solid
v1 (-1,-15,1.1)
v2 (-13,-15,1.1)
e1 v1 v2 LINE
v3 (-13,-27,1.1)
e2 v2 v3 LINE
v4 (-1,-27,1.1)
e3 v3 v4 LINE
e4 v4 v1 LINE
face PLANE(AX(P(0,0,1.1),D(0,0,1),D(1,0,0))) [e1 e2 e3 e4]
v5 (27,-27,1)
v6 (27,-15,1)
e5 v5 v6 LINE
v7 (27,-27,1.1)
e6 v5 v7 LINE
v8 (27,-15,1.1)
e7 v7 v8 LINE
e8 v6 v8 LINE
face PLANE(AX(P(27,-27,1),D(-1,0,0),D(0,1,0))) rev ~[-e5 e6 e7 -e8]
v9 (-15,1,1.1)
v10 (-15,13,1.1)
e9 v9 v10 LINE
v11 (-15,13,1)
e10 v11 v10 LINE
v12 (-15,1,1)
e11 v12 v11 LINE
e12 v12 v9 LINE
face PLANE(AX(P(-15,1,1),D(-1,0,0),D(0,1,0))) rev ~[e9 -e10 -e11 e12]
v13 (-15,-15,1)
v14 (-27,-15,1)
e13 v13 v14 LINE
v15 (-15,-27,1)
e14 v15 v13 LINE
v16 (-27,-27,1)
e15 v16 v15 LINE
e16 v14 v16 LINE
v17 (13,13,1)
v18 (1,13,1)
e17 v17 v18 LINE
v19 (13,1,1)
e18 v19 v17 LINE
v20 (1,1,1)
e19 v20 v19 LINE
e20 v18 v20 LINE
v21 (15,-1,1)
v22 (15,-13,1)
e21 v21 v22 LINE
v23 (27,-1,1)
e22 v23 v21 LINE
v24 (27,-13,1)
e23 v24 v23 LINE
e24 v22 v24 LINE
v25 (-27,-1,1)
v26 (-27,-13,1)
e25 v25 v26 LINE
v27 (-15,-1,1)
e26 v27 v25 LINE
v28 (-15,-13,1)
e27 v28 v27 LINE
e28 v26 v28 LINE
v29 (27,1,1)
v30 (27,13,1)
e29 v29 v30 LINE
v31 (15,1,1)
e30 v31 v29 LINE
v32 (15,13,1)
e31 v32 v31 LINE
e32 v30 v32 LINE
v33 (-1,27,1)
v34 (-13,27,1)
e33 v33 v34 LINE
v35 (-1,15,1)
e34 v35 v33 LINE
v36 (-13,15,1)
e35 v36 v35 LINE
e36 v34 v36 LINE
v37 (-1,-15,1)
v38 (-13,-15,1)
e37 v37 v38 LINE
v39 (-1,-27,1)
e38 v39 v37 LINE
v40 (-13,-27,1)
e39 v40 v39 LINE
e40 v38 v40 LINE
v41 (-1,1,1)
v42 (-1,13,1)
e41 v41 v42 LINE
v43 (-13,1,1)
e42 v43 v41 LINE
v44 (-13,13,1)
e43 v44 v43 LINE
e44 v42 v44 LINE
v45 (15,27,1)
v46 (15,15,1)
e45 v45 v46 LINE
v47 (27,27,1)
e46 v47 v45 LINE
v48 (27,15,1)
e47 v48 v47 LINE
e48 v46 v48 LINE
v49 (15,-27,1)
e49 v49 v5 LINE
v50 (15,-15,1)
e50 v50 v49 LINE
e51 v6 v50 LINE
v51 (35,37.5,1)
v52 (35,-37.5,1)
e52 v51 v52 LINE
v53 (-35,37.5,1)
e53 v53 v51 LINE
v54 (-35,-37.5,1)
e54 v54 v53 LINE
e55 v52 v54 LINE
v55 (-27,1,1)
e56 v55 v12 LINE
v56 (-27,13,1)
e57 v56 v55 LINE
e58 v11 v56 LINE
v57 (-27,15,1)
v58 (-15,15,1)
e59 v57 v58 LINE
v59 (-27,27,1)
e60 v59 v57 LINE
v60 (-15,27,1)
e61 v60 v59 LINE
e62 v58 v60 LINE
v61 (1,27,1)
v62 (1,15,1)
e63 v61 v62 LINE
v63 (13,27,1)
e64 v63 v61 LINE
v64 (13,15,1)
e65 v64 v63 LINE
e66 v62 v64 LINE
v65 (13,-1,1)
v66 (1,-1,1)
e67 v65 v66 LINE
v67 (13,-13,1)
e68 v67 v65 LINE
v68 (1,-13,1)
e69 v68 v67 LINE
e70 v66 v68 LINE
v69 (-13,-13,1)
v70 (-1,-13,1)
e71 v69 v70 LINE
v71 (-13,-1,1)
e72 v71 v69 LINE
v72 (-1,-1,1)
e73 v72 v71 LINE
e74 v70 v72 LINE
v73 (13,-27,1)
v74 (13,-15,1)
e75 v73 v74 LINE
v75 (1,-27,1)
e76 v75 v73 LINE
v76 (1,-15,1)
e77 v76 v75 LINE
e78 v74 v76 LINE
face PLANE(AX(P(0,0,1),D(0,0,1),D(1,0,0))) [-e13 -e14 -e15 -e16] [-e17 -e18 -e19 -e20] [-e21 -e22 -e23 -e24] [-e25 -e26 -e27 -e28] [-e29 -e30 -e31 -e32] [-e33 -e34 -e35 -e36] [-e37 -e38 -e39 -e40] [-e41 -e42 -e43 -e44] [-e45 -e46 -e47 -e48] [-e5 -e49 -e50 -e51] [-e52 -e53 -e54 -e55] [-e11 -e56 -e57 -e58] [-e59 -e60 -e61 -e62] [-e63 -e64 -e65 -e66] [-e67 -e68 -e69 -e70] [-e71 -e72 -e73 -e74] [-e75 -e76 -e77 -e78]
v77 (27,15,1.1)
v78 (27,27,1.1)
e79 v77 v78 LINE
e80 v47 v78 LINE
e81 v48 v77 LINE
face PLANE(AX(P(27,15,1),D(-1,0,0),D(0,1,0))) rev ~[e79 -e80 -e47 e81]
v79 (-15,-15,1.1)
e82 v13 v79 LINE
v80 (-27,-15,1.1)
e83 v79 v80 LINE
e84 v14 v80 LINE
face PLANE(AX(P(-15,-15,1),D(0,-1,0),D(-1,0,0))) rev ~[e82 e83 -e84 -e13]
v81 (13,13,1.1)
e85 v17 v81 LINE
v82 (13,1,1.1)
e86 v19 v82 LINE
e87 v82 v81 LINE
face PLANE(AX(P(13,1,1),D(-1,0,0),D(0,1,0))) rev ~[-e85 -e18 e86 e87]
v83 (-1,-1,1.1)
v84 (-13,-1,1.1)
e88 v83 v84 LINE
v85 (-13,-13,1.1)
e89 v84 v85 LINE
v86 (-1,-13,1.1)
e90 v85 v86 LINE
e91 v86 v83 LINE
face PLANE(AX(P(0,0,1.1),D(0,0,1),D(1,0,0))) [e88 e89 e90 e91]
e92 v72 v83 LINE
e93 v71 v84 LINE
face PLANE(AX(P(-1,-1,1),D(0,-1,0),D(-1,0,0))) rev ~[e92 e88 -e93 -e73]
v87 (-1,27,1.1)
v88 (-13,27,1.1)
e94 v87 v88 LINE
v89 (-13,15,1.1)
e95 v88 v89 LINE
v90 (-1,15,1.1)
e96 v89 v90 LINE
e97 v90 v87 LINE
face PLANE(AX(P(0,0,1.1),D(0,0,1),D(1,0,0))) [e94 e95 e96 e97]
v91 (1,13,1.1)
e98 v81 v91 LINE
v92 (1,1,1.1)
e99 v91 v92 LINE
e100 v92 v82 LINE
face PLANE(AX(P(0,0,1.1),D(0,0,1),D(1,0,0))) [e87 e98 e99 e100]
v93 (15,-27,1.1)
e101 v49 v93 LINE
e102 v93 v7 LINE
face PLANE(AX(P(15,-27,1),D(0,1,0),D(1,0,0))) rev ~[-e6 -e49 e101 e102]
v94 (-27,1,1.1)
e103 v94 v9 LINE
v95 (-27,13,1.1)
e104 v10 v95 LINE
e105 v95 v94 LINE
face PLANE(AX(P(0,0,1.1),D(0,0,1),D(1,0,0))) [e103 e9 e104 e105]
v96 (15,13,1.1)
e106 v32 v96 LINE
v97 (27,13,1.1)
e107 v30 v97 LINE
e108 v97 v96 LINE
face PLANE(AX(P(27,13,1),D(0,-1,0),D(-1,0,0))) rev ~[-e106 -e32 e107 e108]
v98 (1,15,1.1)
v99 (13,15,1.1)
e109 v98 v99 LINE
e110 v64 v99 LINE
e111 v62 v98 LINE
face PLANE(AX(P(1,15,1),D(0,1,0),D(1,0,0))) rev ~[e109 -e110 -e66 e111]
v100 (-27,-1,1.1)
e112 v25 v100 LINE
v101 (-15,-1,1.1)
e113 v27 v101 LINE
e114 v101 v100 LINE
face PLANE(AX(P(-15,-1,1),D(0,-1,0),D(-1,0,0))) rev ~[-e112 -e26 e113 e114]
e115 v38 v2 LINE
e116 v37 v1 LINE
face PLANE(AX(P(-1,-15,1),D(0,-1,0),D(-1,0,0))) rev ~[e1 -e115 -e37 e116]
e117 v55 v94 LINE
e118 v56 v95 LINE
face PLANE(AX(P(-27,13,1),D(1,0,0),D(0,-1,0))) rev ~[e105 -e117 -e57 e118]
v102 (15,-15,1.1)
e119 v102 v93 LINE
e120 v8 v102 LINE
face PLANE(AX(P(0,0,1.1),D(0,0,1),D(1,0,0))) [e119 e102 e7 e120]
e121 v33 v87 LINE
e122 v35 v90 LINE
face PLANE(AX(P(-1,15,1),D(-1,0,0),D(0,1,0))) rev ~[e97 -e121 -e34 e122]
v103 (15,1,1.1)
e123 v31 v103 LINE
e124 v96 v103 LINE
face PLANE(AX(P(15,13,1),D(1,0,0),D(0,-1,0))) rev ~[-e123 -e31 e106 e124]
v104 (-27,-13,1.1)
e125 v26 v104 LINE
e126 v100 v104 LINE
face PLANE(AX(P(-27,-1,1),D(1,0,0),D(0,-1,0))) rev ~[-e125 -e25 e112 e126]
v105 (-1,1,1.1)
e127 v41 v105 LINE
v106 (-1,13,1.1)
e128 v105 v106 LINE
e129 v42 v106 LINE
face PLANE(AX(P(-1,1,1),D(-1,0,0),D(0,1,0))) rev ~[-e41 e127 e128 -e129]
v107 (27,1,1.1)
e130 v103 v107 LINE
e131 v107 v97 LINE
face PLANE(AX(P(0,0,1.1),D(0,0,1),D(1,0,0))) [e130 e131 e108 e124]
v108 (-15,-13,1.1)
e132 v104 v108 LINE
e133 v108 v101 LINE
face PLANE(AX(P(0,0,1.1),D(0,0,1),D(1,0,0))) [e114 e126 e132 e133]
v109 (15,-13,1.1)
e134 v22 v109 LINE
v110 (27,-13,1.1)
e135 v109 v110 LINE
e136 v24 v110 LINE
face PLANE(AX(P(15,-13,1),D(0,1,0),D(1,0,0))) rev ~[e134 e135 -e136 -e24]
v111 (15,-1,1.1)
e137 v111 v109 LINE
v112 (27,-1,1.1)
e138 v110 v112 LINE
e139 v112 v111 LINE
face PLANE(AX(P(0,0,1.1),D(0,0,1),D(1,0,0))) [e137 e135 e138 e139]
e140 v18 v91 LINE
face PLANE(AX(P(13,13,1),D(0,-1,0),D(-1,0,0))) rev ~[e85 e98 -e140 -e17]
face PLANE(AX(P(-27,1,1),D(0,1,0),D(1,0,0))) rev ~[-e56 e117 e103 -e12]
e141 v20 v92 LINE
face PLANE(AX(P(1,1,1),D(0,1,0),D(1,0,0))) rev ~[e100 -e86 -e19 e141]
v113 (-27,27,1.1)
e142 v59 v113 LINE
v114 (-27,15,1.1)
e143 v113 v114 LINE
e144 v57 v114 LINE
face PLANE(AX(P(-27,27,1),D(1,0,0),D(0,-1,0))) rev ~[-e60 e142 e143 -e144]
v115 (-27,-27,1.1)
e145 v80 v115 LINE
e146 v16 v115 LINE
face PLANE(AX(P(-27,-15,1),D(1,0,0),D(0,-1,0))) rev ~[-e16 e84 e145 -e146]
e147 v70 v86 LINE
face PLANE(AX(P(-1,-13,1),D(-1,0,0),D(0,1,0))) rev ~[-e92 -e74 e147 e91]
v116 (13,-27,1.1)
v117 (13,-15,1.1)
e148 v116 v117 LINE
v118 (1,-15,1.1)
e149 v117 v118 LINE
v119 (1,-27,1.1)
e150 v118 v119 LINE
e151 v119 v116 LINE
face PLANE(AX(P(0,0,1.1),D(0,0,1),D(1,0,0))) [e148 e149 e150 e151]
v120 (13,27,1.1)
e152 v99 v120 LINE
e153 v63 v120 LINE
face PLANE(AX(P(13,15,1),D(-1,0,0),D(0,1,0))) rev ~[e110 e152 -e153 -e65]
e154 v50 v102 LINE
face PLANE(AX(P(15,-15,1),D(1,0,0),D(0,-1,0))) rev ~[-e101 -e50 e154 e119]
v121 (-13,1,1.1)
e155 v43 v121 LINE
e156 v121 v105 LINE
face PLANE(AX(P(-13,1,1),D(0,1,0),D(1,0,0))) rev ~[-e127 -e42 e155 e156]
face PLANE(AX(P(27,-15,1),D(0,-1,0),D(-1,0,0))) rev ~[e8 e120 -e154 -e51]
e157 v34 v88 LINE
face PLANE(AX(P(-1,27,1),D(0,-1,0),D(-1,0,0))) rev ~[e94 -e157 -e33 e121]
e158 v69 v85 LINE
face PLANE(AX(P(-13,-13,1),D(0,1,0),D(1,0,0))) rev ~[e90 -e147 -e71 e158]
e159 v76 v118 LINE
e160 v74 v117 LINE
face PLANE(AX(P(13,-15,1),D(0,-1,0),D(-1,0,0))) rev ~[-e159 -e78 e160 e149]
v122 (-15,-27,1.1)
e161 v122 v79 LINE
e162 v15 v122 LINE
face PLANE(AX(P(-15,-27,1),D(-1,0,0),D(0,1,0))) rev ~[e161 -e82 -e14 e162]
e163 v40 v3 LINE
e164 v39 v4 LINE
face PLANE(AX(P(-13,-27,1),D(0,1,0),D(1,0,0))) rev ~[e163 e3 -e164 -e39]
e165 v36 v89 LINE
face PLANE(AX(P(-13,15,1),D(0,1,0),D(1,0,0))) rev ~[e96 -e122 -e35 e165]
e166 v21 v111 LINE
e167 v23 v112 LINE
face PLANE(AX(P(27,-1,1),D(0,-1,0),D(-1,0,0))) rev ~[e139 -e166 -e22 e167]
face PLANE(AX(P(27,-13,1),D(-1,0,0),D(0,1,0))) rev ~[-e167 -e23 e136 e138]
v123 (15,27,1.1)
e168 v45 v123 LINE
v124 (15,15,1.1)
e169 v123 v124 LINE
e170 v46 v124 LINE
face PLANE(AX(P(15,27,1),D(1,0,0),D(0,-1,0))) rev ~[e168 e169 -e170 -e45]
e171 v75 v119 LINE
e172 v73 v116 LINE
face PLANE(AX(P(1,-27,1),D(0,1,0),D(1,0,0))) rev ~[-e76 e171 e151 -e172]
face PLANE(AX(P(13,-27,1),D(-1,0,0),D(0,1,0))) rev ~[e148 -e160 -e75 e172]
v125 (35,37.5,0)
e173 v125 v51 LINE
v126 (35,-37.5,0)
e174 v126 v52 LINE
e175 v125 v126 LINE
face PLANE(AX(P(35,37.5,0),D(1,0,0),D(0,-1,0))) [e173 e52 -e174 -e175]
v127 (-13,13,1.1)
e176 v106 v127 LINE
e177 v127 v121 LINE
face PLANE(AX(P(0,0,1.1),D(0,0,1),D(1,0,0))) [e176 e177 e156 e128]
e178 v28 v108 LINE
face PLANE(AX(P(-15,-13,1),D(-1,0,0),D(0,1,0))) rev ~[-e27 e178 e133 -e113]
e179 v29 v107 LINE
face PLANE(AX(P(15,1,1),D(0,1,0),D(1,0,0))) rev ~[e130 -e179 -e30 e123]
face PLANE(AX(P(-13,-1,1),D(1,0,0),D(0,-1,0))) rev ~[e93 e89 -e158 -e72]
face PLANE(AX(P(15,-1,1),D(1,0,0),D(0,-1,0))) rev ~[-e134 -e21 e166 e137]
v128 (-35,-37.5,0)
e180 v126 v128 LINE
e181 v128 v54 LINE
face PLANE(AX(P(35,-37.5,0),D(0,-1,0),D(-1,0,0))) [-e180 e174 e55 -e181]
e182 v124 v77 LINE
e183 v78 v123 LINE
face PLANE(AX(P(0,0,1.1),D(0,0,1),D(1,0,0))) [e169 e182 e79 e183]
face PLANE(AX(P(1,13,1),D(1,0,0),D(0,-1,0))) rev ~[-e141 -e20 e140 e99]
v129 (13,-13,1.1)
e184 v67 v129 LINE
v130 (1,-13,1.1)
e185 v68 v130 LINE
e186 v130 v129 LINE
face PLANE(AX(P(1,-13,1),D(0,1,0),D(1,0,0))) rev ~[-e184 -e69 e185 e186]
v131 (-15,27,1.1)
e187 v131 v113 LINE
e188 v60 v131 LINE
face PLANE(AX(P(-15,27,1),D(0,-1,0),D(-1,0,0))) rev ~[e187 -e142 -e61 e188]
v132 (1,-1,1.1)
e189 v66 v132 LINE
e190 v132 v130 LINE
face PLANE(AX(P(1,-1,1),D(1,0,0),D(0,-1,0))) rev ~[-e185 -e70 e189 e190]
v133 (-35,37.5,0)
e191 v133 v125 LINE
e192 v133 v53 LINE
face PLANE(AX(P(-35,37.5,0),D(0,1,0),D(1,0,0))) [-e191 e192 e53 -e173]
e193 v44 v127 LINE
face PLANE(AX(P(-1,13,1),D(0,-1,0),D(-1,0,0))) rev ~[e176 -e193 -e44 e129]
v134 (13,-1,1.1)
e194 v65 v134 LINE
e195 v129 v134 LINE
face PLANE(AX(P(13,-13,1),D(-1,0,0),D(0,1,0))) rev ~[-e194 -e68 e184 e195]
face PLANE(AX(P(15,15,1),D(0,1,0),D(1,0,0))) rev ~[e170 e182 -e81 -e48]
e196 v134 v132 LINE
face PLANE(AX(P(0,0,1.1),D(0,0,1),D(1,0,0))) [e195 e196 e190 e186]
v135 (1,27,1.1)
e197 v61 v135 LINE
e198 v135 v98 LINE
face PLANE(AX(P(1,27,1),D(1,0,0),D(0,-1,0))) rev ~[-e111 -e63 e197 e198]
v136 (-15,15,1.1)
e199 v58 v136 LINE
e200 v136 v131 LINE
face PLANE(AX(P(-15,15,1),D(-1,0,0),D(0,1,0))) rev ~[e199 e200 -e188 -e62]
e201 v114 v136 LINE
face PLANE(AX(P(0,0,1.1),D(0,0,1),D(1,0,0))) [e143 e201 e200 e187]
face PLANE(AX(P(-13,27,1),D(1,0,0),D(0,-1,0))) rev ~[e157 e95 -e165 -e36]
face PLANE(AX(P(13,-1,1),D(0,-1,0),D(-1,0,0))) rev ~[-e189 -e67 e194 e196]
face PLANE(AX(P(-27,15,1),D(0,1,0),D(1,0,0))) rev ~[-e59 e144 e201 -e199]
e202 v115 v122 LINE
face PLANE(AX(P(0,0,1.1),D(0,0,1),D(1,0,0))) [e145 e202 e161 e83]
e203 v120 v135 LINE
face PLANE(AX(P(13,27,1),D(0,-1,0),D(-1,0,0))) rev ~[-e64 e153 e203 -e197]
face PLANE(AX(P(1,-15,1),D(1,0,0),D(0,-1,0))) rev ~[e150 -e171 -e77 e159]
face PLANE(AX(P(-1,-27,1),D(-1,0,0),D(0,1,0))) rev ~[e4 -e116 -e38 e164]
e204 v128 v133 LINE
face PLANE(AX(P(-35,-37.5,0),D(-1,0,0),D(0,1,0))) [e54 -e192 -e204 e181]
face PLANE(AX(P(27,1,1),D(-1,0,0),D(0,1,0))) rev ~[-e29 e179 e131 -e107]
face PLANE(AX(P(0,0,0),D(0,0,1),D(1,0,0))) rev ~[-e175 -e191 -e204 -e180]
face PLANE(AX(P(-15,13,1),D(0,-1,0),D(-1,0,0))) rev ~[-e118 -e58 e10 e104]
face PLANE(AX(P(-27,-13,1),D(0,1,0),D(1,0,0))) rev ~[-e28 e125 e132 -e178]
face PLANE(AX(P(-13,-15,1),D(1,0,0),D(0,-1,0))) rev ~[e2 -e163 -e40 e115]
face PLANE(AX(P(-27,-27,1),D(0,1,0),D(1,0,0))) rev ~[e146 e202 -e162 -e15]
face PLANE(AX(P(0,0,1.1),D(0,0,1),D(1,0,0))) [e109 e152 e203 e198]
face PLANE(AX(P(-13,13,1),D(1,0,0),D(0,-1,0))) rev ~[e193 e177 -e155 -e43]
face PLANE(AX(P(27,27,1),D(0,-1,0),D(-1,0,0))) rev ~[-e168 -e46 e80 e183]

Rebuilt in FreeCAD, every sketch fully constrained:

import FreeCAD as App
import Part
import Sketcher


def add_polygon(sketch, points):
    """Adds a closed chain of lines whose ends are joined by coincident constraints."""
    first, n = sketch.GeometryCount, len(points)
    for a, b in zip(points, points[1:] + points[:1]):
        sketch.addGeometry(Part.LineSegment(App.Vector(*a, 0), App.Vector(*b, 0)), False)
    for i in range(n):
        sketch.addConstraint(Sketcher.Constraint("Coincident", first + i, 2, first + (i + 1) % n, 1))

doc = App.newDocument("Part")
body = doc.addObject("PartDesign::Body", "Body")

sketch1 = body.newObject("Sketcher::SketchObject", "Sketch")
sketch1.AttachmentSupport = (doc.getObject("XY_Plane"), [""])
sketch1.MapMode = "FlatFace"
add_polygon(sketch1, [(35, 38), (-35, 38), (-35, -38), (35, -38)])
sketch1.addConstraint(Sketcher.Constraint("Horizontal", 0))
sketch1.addConstraint(Sketcher.Constraint("Vertical", 1))
sketch1.addConstraint(Sketcher.Constraint("Horizontal", 2))
sketch1.addConstraint(Sketcher.Constraint("Vertical", 3))
sketch1.addConstraint(Sketcher.Constraint("Symmetric", 0, 2, 2, 2, -1, 1))
sketch1.addConstraint(Sketcher.Constraint("DistanceX", 0, 2, 0, 1, 70.0))
sketch1.addConstraint(Sketcher.Constraint("DistanceY", 1, 2, 1, 1, 75.0))
pad1 = body.newObject("PartDesign::Pad", "Pad")
pad1.Profile = sketch1
pad1.Length = 1

sketch2 = body.newObject("Sketcher::SketchObject", "Sketch001")
sketch2.AttachmentSupport = (doc.getObject("XY_Plane"), [""])
sketch2.MapMode = "FlatFace"
sketch2.AttachmentOffset = App.Placement(App.Vector(0, 0, 1), App.Rotation())
add_polygon(sketch2, [(-27, -15), (-27, -27), (-15, -27), (-15, -15)])
add_polygon(sketch2, [(-13, -15), (-13, -27), (-1, -27), (-1, -15)])
add_polygon(sketch2, [(1, -15), (1, -27), (13, -27), (13, -15)])
add_polygon(sketch2, [(15, -15), (15, -27), (27, -27), (27, -15)])
add_polygon(sketch2, [(-27, -1), (-27, -13), (-15, -13), (-15, -1)])
add_polygon(sketch2, [(-13, -1), (-13, -13), (-1, -13), (-1, -1)])
add_polygon(sketch2, [(1, -1), (1, -13), (13, -13), (13, -1)])
add_polygon(sketch2, [(15, -1), (15, -13), (27, -13), (27, -1)])
add_polygon(sketch2, [(-27, 13), (-27, 1), (-15, 1), (-15, 13)])
add_polygon(sketch2, [(-13, 13), (-13, 1), (-1, 1), (-1, 13)])
add_polygon(sketch2, [(1, 13), (1, 1), (13, 1), (13, 13)])
add_polygon(sketch2, [(15, 13), (15, 1), (27, 1), (27, 13)])
add_polygon(sketch2, [(-27, 27), (-27, 15), (-15, 15), (-15, 27)])
add_polygon(sketch2, [(-13, 27), (-13, 15), (-1, 15), (-1, 27)])
add_polygon(sketch2, [(1, 27), (1, 15), (13, 15), (13, 27)])
add_polygon(sketch2, [(15, 27), (15, 15), (27, 15), (27, 27)])
sketch2.addConstraint(Sketcher.Constraint("Vertical", 0))
sketch2.addConstraint(Sketcher.Constraint("Horizontal", 1))
sketch2.addConstraint(Sketcher.Constraint("Vertical", 2))
sketch2.addConstraint(Sketcher.Constraint("Horizontal", 3))
sketch2.addConstraint(Sketcher.Constraint("Vertical", 4))
sketch2.addConstraint(Sketcher.Constraint("Horizontal", 5))
sketch2.addConstraint(Sketcher.Constraint("Vertical", 6))
sketch2.addConstraint(Sketcher.Constraint("Horizontal", 7))
sketch2.addConstraint(Sketcher.Constraint("Vertical", 8))
sketch2.addConstraint(Sketcher.Constraint("Horizontal", 9))
sketch2.addConstraint(Sketcher.Constraint("Vertical", 10))
sketch2.addConstraint(Sketcher.Constraint("Horizontal", 11))
sketch2.addConstraint(Sketcher.Constraint("Vertical", 12))
sketch2.addConstraint(Sketcher.Constraint("Horizontal", 13))
sketch2.addConstraint(Sketcher.Constraint("Vertical", 14))
sketch2.addConstraint(Sketcher.Constraint("Horizontal", 15))
sketch2.addConstraint(Sketcher.Constraint("Vertical", 16))
sketch2.addConstraint(Sketcher.Constraint("Horizontal", 17))
sketch2.addConstraint(Sketcher.Constraint("Vertical", 18))
sketch2.addConstraint(Sketcher.Constraint("Horizontal", 19))
sketch2.addConstraint(Sketcher.Constraint("Vertical", 20))
sketch2.addConstraint(Sketcher.Constraint("Horizontal", 21))
sketch2.addConstraint(Sketcher.Constraint("Vertical", 22))
sketch2.addConstraint(Sketcher.Constraint("Horizontal", 23))
sketch2.addConstraint(Sketcher.Constraint("Vertical", 24))
sketch2.addConstraint(Sketcher.Constraint("Horizontal", 25))
sketch2.addConstraint(Sketcher.Constraint("Vertical", 26))
sketch2.addConstraint(Sketcher.Constraint("Horizontal", 27))
sketch2.addConstraint(Sketcher.Constraint("Vertical", 28))
sketch2.addConstraint(Sketcher.Constraint("Horizontal", 29))
sketch2.addConstraint(Sketcher.Constraint("Vertical", 30))
sketch2.addConstraint(Sketcher.Constraint("Horizontal", 31))
sketch2.addConstraint(Sketcher.Constraint("Vertical", 32))
sketch2.addConstraint(Sketcher.Constraint("Horizontal", 33))
sketch2.addConstraint(Sketcher.Constraint("Vertical", 34))
sketch2.addConstraint(Sketcher.Constraint("Horizontal", 35))
sketch2.addConstraint(Sketcher.Constraint("Vertical", 36))
sketch2.addConstraint(Sketcher.Constraint("Horizontal", 37))
sketch2.addConstraint(Sketcher.Constraint("Vertical", 38))
sketch2.addConstraint(Sketcher.Constraint("Horizontal", 39))
sketch2.addConstraint(Sketcher.Constraint("Vertical", 40))
sketch2.addConstraint(Sketcher.Constraint("Horizontal", 41))
sketch2.addConstraint(Sketcher.Constraint("Vertical", 42))
sketch2.addConstraint(Sketcher.Constraint("Horizontal", 43))
sketch2.addConstraint(Sketcher.Constraint("Vertical", 44))
sketch2.addConstraint(Sketcher.Constraint("Horizontal", 45))
sketch2.addConstraint(Sketcher.Constraint("Vertical", 46))
sketch2.addConstraint(Sketcher.Constraint("Horizontal", 47))
sketch2.addConstraint(Sketcher.Constraint("Vertical", 48))
sketch2.addConstraint(Sketcher.Constraint("Horizontal", 49))
sketch2.addConstraint(Sketcher.Constraint("Vertical", 50))
sketch2.addConstraint(Sketcher.Constraint("Horizontal", 51))
sketch2.addConstraint(Sketcher.Constraint("Vertical", 52))
sketch2.addConstraint(Sketcher.Constraint("Horizontal", 53))
sketch2.addConstraint(Sketcher.Constraint("Vertical", 54))
sketch2.addConstraint(Sketcher.Constraint("Horizontal", 55))
sketch2.addConstraint(Sketcher.Constraint("Vertical", 56))
sketch2.addConstraint(Sketcher.Constraint("Horizontal", 57))
sketch2.addConstraint(Sketcher.Constraint("Vertical", 58))
sketch2.addConstraint(Sketcher.Constraint("Horizontal", 59))
sketch2.addConstraint(Sketcher.Constraint("Vertical", 60))
sketch2.addConstraint(Sketcher.Constraint("Horizontal", 61))
sketch2.addConstraint(Sketcher.Constraint("Vertical", 62))
sketch2.addConstraint(Sketcher.Constraint("Horizontal", 63))
sketch2.addConstraint(Sketcher.Constraint("Symmetric", 30, 2, 32, 2, -1, 1))
sketch2.addConstraint(Sketcher.Constraint("Symmetric", 28, 2, 34, 2, -1, 1))
sketch2.addConstraint(Sketcher.Constraint("Symmetric", 26, 2, 36, 2, -1, 1))
sketch2.addConstraint(Sketcher.Constraint("Symmetric", 24, 2, 38, 2, -1, 1))
sketch2.addConstraint(Sketcher.Constraint("Symmetric", 22, 2, 40, 2, -1, 1))
sketch2.addConstraint(Sketcher.Constraint("Symmetric", 20, 2, 42, 2, -1, 1))
sketch2.addConstraint(Sketcher.Constraint("Symmetric", 18, 2, 44, 2, -1, 1))
sketch2.addConstraint(Sketcher.Constraint("Symmetric", 16, 2, 46, 2, -1, 1))
sketch2.addConstraint(Sketcher.Constraint("Symmetric", 14, 2, 48, 2, -1, 1))
sketch2.addConstraint(Sketcher.Constraint("Symmetric", 12, 2, 50, 2, -1, 1))
sketch2.addConstraint(Sketcher.Constraint("Symmetric", 10, 2, 52, 2, -1, 1))
sketch2.addConstraint(Sketcher.Constraint("Symmetric", 8, 2, 54, 2, -1, 1))
sketch2.addConstraint(Sketcher.Constraint("Symmetric", 6, 2, 56, 2, -1, 1))
sketch2.addConstraint(Sketcher.Constraint("Symmetric", 4, 2, 58, 2, -1, 1))
sketch2.addConstraint(Sketcher.Constraint("Symmetric", 2, 2, 60, 2, -1, 1))
sketch2.addConstraint(Sketcher.Constraint("Symmetric", 0, 2, 62, 2, -1, 1))
sketch2.addConstraint(Sketcher.Constraint("Symmetric", 5, 2, 8, 2, -2))
sketch2.addConstraint(Sketcher.Constraint("Symmetric", 7, 2, 10, 2, -2))
sketch2.addConstraint(Sketcher.Constraint("Symmetric", 1, 2, 12, 2, -2))
sketch2.addConstraint(Sketcher.Constraint("Symmetric", 3, 2, 14, 2, -2))
sketch2.addConstraint(Sketcher.Constraint("Symmetric", 21, 2, 24, 2, -2))
sketch2.addConstraint(Sketcher.Constraint("Symmetric", 23, 2, 26, 2, -2))
sketch2.addConstraint(Sketcher.Constraint("Symmetric", 17, 2, 28, 2, -2))
sketch2.addConstraint(Sketcher.Constraint("Symmetric", 19, 2, 30, 2, -2))
sketch2.addConstraint(Sketcher.Constraint("Horizontal", 1, 2, 4, 2))
sketch2.addConstraint(Sketcher.Constraint("Horizontal", 3, 2, 6, 2))
sketch2.addConstraint(Sketcher.Constraint("Horizontal", 17, 2, 20, 2))
sketch2.addConstraint(Sketcher.Constraint("Horizontal", 19, 2, 22, 2))
sketch2.addConstraint(Sketcher.Constraint("Vertical", 3, 2, 16, 2))
sketch2.addConstraint(Sketcher.Constraint("Vertical", 2, 2, 17, 2))
sketch2.addConstraint(Sketcher.Constraint("Vertical", 7, 2, 20, 2))
sketch2.addConstraint(Sketcher.Constraint("Vertical", 6, 2, 21, 2))
sketch2.addConstraint(Sketcher.Constraint("Equal", 3, 5))
sketch2.addConstraint(Sketcher.Constraint("Equal", 63, 0))
sketch2.addConstraint(Sketcher.Constraint("Equal", 14, 16))
sketch2.addConstraint(Sketcher.Constraint("DistanceX", 1, 1, 1, 2, 12.0))
sketch2.addConstraint(Sketcher.Constraint("DistanceX", 0, 2, -1, 1, 27.0))
sketch2.addConstraint(Sketcher.Constraint("DistanceY", 0, 2, -1, 1, 27.0))
sketch2.addConstraint(Sketcher.Constraint("DistanceX", 4, 2, -1, 1, 13.0))
sketch2.addConstraint(Sketcher.Constraint("DistanceY", 16, 2, -1, 1, 13.0))
pad2 = body.newObject("PartDesign::Pad", "Pad001")
pad2.Profile = sketch2
pad2.Length = 0.1

doc.recompute()
